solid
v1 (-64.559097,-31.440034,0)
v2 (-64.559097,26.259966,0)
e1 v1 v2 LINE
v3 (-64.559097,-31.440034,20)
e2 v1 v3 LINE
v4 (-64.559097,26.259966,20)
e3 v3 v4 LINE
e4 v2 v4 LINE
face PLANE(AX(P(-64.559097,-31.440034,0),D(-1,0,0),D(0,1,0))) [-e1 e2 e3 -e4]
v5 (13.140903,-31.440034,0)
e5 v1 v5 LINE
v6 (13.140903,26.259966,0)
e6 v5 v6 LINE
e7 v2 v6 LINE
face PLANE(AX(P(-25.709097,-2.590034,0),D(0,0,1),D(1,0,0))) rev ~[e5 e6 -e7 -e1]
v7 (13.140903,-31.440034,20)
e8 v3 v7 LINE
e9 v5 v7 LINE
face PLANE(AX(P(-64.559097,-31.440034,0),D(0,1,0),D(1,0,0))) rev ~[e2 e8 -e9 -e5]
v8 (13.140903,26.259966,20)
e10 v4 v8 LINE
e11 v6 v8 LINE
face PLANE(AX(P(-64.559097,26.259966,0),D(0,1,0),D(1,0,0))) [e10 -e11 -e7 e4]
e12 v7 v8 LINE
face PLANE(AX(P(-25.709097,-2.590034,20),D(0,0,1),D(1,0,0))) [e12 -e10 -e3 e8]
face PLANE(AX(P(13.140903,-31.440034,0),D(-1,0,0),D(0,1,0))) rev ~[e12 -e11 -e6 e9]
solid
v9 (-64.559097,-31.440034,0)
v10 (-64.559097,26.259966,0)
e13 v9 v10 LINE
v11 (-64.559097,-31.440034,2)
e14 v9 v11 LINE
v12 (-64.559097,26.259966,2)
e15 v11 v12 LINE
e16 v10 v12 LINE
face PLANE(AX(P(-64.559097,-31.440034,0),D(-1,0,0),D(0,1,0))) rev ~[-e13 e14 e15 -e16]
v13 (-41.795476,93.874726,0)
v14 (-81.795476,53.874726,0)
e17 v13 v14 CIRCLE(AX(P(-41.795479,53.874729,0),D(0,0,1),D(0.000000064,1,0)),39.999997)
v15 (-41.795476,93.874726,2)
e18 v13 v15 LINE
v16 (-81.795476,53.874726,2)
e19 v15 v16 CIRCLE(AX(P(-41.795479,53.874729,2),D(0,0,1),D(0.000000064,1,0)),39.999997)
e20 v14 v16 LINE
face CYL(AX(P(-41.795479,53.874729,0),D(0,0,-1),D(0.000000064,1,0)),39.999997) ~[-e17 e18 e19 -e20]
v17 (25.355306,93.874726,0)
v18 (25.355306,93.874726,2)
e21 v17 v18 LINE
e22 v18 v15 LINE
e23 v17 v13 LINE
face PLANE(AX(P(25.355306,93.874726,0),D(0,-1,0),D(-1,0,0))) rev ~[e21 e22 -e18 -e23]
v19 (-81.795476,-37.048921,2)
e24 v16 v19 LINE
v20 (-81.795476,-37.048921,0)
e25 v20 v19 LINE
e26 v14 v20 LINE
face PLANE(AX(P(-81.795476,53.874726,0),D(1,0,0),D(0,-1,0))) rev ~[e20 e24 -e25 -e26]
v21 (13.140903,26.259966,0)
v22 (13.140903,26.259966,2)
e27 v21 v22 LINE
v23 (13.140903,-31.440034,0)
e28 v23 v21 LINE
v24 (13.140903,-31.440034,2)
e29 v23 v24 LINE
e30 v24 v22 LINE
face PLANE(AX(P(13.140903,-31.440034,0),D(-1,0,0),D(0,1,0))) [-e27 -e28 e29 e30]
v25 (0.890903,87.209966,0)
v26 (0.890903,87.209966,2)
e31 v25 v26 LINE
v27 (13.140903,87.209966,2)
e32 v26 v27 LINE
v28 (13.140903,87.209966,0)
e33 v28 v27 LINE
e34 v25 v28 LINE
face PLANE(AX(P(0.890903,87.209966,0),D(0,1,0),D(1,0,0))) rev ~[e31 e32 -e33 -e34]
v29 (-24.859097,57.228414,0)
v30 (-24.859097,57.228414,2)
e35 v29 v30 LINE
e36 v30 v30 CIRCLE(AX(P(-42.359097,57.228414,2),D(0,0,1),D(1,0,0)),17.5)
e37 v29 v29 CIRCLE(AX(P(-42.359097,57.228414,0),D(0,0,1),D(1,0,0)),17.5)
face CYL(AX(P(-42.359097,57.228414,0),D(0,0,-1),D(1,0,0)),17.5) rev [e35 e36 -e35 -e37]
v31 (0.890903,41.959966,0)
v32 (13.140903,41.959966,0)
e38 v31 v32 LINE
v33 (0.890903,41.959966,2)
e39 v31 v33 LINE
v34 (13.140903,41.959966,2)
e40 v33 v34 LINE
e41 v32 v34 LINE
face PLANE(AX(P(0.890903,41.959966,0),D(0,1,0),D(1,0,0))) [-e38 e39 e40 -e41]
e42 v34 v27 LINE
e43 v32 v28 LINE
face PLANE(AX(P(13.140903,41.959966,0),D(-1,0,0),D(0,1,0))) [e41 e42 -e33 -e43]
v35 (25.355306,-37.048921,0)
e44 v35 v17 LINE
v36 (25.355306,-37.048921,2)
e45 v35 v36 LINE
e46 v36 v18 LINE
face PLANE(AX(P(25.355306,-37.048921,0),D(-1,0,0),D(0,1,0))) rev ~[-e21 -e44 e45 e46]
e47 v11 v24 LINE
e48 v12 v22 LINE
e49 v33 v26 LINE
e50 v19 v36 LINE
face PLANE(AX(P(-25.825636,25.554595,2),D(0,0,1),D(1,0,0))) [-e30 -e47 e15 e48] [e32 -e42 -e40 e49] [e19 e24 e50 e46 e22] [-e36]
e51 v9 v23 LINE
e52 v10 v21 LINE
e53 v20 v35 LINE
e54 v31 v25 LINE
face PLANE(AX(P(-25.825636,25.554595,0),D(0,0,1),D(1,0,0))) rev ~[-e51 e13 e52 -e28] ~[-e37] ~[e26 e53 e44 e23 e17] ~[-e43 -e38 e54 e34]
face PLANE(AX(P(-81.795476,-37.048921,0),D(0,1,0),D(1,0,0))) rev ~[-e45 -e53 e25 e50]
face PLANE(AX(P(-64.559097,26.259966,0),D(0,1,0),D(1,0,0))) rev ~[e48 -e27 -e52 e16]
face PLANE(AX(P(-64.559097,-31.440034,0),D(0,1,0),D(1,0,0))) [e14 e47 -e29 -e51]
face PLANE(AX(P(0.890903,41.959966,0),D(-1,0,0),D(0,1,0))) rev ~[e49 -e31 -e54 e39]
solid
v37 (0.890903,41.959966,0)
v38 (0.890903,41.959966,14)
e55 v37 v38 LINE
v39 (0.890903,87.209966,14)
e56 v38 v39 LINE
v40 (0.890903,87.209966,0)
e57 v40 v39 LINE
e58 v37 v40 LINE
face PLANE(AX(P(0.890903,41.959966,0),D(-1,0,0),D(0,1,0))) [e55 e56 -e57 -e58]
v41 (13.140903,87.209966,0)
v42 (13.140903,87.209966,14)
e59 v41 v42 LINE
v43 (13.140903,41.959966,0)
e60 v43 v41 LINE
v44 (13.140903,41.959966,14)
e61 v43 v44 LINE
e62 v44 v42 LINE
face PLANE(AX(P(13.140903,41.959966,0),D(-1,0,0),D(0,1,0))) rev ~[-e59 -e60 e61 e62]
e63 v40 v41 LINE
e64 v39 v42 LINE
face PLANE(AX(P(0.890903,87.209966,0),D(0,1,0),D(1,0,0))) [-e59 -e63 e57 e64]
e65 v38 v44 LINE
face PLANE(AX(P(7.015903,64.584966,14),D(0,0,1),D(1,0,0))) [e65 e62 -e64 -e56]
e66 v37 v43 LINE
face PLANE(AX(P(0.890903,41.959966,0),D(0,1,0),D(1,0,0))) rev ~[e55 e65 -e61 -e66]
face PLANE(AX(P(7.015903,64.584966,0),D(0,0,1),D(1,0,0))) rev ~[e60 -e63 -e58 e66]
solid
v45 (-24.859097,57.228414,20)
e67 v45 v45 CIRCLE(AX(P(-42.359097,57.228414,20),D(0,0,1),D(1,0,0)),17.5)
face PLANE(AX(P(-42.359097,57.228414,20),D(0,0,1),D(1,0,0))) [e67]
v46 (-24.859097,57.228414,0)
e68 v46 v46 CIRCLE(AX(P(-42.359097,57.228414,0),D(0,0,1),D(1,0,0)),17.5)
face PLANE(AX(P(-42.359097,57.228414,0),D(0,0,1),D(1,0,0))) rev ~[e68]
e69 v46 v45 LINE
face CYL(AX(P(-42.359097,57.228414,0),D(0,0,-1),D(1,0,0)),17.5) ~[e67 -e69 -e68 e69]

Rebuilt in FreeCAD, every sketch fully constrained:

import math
import FreeCAD as App
import Part
import Sketcher

V = App.Vector
Q = App.Units.Quantity

doc = App.newDocument("Part")
body = doc.addObject("PartDesign::Body", "Body")

# Sketch on XY plane
sketch1 = body.newObject("Sketcher::SketchObject", "Sketch")
sketch1.AttachmentSupport = (doc.getObject("XY_Plane"), [""])
sketch1.MapMode = "FlatFace"
sketch1.addGeometry(Part.Circle(V(-42.359097, 57.228414, 0), V(0, 0, 1), 17.5), False)
sketch1.addConstraint(Sketcher.Constraint("Diameter", 0, Q("35 mm")))
sketch1.addConstraint(Sketcher.Constraint("DistanceX", 0, 3, -1, 1, Q("42.359097 mm")))
sketch1.addConstraint(Sketcher.Constraint("DistanceY", -1, 1, 0, 3, Q("57.228414 mm")))
pad1 = body.newObject("PartDesign::Pad", "Pad")
pad1.Profile = sketch1
pad1.Length = 20
body2 = doc.addObject("PartDesign::Body", "Body001")

# Sketch on XY plane
sketch2 = body2.newObject("Sketcher::SketchObject", "Sketch001")
sketch2.AttachmentSupport = (doc.getObject("XY_Plane001"), [""])
sketch2.MapMode = "FlatFace"
sketch2.addGeometry(Part.LineSegment(V(0.890903, 87.209966, 0), V(0.890903, 41.959966, 0)), False)
sketch2.addGeometry(Part.LineSegment(V(0.890903, 41.959966, 0), V(13.140903, 41.959966, 0)), False)
sketch2.addGeometry(Part.LineSegment(V(13.140903, 41.959966, 0), V(13.140903, 87.209966, 0)), False)
sketch2.addGeometry(Part.LineSegment(V(13.140903, 87.209966, 0), V(0.890903, 87.209966, 0)), False)
sketch2.addConstraint(Sketcher.Constraint("Coincident", 0, 2, 1, 1))
sketch2.addConstraint(Sketcher.Constraint("Coincident", 1, 2, 2, 1))
sketch2.addConstraint(Sketcher.Constraint("Coincident", 2, 2, 3, 1))
sketch2.addConstraint(Sketcher.Constraint("Coincident", 3, 2, 0, 1))
sketch2.addConstraint(Sketcher.Constraint("Vertical", 0))
sketch2.addConstraint(Sketcher.Constraint("Horizontal", 1))
sketch2.addConstraint(Sketcher.Constraint("Vertical", 2))
sketch2.addConstraint(Sketcher.Constraint("Horizontal", 3))
sketch2.addConstraint(Sketcher.Constraint("DistanceX", 1, 1, 1, 2, Q("12.25 mm")))
sketch2.addConstraint(Sketcher.Constraint("DistanceY", 0, 2, 0, 1, Q("45.25 mm")))
sketch2.addConstraint(Sketcher.Constraint("DistanceX", -1, 1, 0, 2, Q("0.890903 mm")))
sketch2.addConstraint(Sketcher.Constraint("DistanceY", -1, 1, 0, 2, Q("41.959966 mm")))
pad2 = body2.newObject("PartDesign::Pad", "Pad001")
pad2.Profile = sketch2
pad2.Length = 14
body3 = doc.addObject("PartDesign::Body", "Body002")

# Sketch on XY plane
sketch3 = body3.newObject("Sketcher::SketchObject", "Sketch002")
sketch3.AttachmentSupport = (doc.getObject("XY_Plane002"), [""])
sketch3.MapMode = "FlatFace"
sketch3.addGeometry(Part.LineSegment(V(-64.559097, 26.259966, 0), V(-64.559097, -31.440034, 0)), False)
sketch3.addGeometry(Part.LineSegment(V(-64.559097, -31.440034, 0), V(13.140903, -31.440034, 0)), False)
sketch3.addGeometry(Part.LineSegment(V(13.140903, -31.440034, 0), V(13.140903, 26.259966, 0)), False)
sketch3.addGeometry(Part.LineSegment(V(13.140903, 26.259966, 0), V(-64.559097, 26.259966, 0)), False)
sketch3.addConstraint(Sketcher.Constraint("Coincident", 0, 2, 1, 1))
sketch3.addConstraint(Sketcher.Constraint("Coincident", 1, 2, 2, 1))
sketch3.addConstraint(Sketcher.Constraint("Coincident", 2, 2, 3, 1))
sketch3.addConstraint(Sketcher.Constraint("Coincident", 3, 2, 0, 1))
sketch3.addConstraint(Sketcher.Constraint("Vertical", 0))
sketch3.addConstraint(Sketcher.Constraint("Horizontal", 1))
sketch3.addConstraint(Sketcher.Constraint("Vertical", 2))
sketch3.addConstraint(Sketcher.Constraint("Horizontal", 3))
sketch3.addConstraint(Sketcher.Constraint("DistanceX", 1, 1, 1, 2, Q("77.7 mm")))
sketch3.addConstraint(Sketcher.Constraint("DistanceY", 0, 2, 0, 1, Q("57.7 mm")))
sketch3.addConstraint(Sketcher.Constraint("DistanceX", 0, 2, -1, 1, Q("64.559097 mm")))
sketch3.addConstraint(Sketcher.Constraint("DistanceY", 0, 2, -1, 1, Q("31.440034 mm")))
pad3 = body3.newObject("PartDesign::Pad", "Pad002")
pad3.Profile = sketch3
pad3.Length = 20
body4 = doc.addObject("PartDesign::Body", "Body003")

# Sketch on XY plane
sketch4 = body4.newObject("Sketcher::SketchObject", "Sketch003")
sketch4.AttachmentSupport = (doc.getObject("XY_Plane003"), [""])
sketch4.MapMode = "FlatFace"
sketch4.addGeometry(Part.LineSegment(V(-81.795476, -37.048921, 0), V(25.355306, -37.048921, 0)), False)
sketch4.addGeometry(Part.LineSegment(V(25.355306, -37.048921, 0), V(25.355306, 93.874726, 0)), False)
sketch4.addGeometry(Part.LineSegment(V(25.355306, 93.874726, 0), V(-41.795476, 93.874726, 0)), False)
sketch4.addGeometry(Part.ArcOfCircle(Part.Circle(V(-41.795479, 53.874729, 0), V(0, 0, 1), 39.999997), math.radians(89.999996), math.radians(180.000004)), False)
sketch4.addGeometry(Part.LineSegment(V(-81.795476, 53.874726, 0), V(-81.795476, -37.048921, 0)), False)
sketch4.addGeometry(Part.LineSegment(V(13.140903, -31.440034, 0), V(-64.559097, -31.440034, 0)), False)
sketch4.addGeometry(Part.LineSegment(V(-64.559097, -31.440034, 0), V(-64.559097, 26.259966, 0)), False)
sketch4.addGeometry(Part.LineSegment(V(-64.559097, 26.259966, 0), V(13.140903, 26.259966, 0)), False)
sketch4.addGeometry(Part.LineSegment(V(13.140903, 26.259966, 0), V(13.140903, -31.440034, 0)), False)
sketch4.addGeometry(Part.Circle(V(-42.359097, 57.228414, 0), V(0, 0, 1), 17.5), False)
sketch4.addGeometry(Part.LineSegment(V(13.140903, 41.959966, 0), V(0.890903, 41.959966, 0)), False)
sketch4.addGeometry(Part.LineSegment(V(0.890903, 41.959966, 0), V(0.890903, 87.209966, 0)), False)
sketch4.addGeometry(Part.LineSegment(V(0.890903, 87.209966, 0), V(13.140903, 87.209966, 0)), False)
sketch4.addGeometry(Part.LineSegment(V(13.140903, 87.209966, 0), V(13.140903, 41.959966, 0)), False)
sketch4.addConstraint(Sketcher.Constraint("Coincident", 0, 2, 1, 1))
sketch4.addConstraint(Sketcher.Constraint("Coincident", 1, 2, 2, 1))
sketch4.addConstraint(Sketcher.Constraint("Tangent", 2, 2, 3, 1))
sketch4.addConstraint(Sketcher.Constraint("Tangent", 3, 2, 4, 1))
sketch4.addConstraint(Sketcher.Constraint("Coincident", 4, 2, 0, 1))
sketch4.addConstraint(Sketcher.Constraint("Coincident", 5, 2, 6, 1))
sketch4.addConstraint(Sketcher.Constraint("Coincident", 6, 2, 7, 1))
sketch4.addConstraint(Sketcher.Constraint("Coincident", 7, 2, 8, 1))
sketch4.addConstraint(Sketcher.Constraint("Coincident", 8, 2, 5, 1))
sketch4.addConstraint(Sketcher.Constraint("Coincident", 10, 2, 11, 1))
sketch4.addConstraint(Sketcher.Constraint("Coincident", 11, 2, 12, 1))
sketch4.addConstraint(Sketcher.Constraint("Coincident", 12, 2, 13, 1))
sketch4.addConstraint(Sketcher.Constraint("Coincident", 13, 2, 10, 1))
sketch4.addConstraint(Sketcher.Constraint("Horizontal", 0))
sketch4.addConstraint(Sketcher.Constraint("Vertical", 1))
sketch4.addConstraint(Sketcher.Constraint("Horizontal", 2))
sketch4.addConstraint(Sketcher.Constraint("Vertical", 4))
sketch4.addConstraint(Sketcher.Constraint("Horizontal", 5))
sketch4.addConstraint(Sketcher.Constraint("Vertical", 6))
sketch4.addConstraint(Sketcher.Constraint("Horizontal", 7))
sketch4.addConstraint(Sketcher.Constraint("Vertical", 8))
sketch4.addConstraint(Sketcher.Constraint("Horizontal", 10))
sketch4.addConstraint(Sketcher.Constraint("Vertical", 11))
sketch4.addConstraint(Sketcher.Constraint("Horizontal", 12))
sketch4.addConstraint(Sketcher.Constraint("Vertical", 13))
sketch4.addConstraint(Sketcher.Constraint("Vertical", 8, 2, 12, 2))
sketch4.addConstraint(Sketcher.Constraint("Diameter", 9, Q("35 mm")))
sketch4.addConstraint(Sketcher.Constraint("DistanceX", 5, 2, 5, 1, Q("77.7 mm")))
sketch4.addConstraint(Sketcher.Constraint("DistanceY", 6, 1, 6, 2, Q("57.7 mm")))
sketch4.addConstraint(Sketcher.Constraint("DistanceX", 3, 2, 2, 2, Q("40 mm")))
sketch4.addConstraint(Sketcher.Constraint("DistanceX", 10, 2, 10, 1, Q("12.25 mm")))
sketch4.addConstraint(Sketcher.Constraint("DistanceY", 11, 1, 11, 2, Q("45.25 mm")))
sketch4.addConstraint(Sketcher.Constraint("DistanceX", 5, 2, 9, 3, Q("22.2 mm")))
sketch4.addConstraint(Sketcher.Constraint("DistanceY", 7, 2, 10, 2, Q("15.7 mm")))
sketch4.addConstraint(Sketcher.Constraint("DistanceX", 0, 1, 0, 2, Q("107.150782 mm")))
sketch4.addConstraint(Sketcher.Constraint("DistanceY", 1, 1, 1, 2, Q("130.923647 mm")))
sketch4.addConstraint(Sketcher.Constraint("DistanceX", 3, 3, -1, 1, Q("41.795479 mm")))
sketch4.addConstraint(Sketcher.Constraint("DistanceY", -1, 1, 3, 3, Q("53.874729 mm")))
sketch4.addConstraint(Sketcher.Constraint("DistanceX", 9, 3, 3, 3, Q("0.563618 mm")))
sketch4.addConstraint(Sketcher.Constraint("DistanceY", 9, 3, 1, 2, Q("36.646312 mm")))
sketch4.addConstraint(Sketcher.Constraint("DistanceY", 5, 2, 3, 2, Q("85.31476 mm")))
pad4 = body4.newObject("PartDesign::Pad", "Pad003")
pad4.Profile = sketch4
pad4.Length = 2

doc.recompute()
